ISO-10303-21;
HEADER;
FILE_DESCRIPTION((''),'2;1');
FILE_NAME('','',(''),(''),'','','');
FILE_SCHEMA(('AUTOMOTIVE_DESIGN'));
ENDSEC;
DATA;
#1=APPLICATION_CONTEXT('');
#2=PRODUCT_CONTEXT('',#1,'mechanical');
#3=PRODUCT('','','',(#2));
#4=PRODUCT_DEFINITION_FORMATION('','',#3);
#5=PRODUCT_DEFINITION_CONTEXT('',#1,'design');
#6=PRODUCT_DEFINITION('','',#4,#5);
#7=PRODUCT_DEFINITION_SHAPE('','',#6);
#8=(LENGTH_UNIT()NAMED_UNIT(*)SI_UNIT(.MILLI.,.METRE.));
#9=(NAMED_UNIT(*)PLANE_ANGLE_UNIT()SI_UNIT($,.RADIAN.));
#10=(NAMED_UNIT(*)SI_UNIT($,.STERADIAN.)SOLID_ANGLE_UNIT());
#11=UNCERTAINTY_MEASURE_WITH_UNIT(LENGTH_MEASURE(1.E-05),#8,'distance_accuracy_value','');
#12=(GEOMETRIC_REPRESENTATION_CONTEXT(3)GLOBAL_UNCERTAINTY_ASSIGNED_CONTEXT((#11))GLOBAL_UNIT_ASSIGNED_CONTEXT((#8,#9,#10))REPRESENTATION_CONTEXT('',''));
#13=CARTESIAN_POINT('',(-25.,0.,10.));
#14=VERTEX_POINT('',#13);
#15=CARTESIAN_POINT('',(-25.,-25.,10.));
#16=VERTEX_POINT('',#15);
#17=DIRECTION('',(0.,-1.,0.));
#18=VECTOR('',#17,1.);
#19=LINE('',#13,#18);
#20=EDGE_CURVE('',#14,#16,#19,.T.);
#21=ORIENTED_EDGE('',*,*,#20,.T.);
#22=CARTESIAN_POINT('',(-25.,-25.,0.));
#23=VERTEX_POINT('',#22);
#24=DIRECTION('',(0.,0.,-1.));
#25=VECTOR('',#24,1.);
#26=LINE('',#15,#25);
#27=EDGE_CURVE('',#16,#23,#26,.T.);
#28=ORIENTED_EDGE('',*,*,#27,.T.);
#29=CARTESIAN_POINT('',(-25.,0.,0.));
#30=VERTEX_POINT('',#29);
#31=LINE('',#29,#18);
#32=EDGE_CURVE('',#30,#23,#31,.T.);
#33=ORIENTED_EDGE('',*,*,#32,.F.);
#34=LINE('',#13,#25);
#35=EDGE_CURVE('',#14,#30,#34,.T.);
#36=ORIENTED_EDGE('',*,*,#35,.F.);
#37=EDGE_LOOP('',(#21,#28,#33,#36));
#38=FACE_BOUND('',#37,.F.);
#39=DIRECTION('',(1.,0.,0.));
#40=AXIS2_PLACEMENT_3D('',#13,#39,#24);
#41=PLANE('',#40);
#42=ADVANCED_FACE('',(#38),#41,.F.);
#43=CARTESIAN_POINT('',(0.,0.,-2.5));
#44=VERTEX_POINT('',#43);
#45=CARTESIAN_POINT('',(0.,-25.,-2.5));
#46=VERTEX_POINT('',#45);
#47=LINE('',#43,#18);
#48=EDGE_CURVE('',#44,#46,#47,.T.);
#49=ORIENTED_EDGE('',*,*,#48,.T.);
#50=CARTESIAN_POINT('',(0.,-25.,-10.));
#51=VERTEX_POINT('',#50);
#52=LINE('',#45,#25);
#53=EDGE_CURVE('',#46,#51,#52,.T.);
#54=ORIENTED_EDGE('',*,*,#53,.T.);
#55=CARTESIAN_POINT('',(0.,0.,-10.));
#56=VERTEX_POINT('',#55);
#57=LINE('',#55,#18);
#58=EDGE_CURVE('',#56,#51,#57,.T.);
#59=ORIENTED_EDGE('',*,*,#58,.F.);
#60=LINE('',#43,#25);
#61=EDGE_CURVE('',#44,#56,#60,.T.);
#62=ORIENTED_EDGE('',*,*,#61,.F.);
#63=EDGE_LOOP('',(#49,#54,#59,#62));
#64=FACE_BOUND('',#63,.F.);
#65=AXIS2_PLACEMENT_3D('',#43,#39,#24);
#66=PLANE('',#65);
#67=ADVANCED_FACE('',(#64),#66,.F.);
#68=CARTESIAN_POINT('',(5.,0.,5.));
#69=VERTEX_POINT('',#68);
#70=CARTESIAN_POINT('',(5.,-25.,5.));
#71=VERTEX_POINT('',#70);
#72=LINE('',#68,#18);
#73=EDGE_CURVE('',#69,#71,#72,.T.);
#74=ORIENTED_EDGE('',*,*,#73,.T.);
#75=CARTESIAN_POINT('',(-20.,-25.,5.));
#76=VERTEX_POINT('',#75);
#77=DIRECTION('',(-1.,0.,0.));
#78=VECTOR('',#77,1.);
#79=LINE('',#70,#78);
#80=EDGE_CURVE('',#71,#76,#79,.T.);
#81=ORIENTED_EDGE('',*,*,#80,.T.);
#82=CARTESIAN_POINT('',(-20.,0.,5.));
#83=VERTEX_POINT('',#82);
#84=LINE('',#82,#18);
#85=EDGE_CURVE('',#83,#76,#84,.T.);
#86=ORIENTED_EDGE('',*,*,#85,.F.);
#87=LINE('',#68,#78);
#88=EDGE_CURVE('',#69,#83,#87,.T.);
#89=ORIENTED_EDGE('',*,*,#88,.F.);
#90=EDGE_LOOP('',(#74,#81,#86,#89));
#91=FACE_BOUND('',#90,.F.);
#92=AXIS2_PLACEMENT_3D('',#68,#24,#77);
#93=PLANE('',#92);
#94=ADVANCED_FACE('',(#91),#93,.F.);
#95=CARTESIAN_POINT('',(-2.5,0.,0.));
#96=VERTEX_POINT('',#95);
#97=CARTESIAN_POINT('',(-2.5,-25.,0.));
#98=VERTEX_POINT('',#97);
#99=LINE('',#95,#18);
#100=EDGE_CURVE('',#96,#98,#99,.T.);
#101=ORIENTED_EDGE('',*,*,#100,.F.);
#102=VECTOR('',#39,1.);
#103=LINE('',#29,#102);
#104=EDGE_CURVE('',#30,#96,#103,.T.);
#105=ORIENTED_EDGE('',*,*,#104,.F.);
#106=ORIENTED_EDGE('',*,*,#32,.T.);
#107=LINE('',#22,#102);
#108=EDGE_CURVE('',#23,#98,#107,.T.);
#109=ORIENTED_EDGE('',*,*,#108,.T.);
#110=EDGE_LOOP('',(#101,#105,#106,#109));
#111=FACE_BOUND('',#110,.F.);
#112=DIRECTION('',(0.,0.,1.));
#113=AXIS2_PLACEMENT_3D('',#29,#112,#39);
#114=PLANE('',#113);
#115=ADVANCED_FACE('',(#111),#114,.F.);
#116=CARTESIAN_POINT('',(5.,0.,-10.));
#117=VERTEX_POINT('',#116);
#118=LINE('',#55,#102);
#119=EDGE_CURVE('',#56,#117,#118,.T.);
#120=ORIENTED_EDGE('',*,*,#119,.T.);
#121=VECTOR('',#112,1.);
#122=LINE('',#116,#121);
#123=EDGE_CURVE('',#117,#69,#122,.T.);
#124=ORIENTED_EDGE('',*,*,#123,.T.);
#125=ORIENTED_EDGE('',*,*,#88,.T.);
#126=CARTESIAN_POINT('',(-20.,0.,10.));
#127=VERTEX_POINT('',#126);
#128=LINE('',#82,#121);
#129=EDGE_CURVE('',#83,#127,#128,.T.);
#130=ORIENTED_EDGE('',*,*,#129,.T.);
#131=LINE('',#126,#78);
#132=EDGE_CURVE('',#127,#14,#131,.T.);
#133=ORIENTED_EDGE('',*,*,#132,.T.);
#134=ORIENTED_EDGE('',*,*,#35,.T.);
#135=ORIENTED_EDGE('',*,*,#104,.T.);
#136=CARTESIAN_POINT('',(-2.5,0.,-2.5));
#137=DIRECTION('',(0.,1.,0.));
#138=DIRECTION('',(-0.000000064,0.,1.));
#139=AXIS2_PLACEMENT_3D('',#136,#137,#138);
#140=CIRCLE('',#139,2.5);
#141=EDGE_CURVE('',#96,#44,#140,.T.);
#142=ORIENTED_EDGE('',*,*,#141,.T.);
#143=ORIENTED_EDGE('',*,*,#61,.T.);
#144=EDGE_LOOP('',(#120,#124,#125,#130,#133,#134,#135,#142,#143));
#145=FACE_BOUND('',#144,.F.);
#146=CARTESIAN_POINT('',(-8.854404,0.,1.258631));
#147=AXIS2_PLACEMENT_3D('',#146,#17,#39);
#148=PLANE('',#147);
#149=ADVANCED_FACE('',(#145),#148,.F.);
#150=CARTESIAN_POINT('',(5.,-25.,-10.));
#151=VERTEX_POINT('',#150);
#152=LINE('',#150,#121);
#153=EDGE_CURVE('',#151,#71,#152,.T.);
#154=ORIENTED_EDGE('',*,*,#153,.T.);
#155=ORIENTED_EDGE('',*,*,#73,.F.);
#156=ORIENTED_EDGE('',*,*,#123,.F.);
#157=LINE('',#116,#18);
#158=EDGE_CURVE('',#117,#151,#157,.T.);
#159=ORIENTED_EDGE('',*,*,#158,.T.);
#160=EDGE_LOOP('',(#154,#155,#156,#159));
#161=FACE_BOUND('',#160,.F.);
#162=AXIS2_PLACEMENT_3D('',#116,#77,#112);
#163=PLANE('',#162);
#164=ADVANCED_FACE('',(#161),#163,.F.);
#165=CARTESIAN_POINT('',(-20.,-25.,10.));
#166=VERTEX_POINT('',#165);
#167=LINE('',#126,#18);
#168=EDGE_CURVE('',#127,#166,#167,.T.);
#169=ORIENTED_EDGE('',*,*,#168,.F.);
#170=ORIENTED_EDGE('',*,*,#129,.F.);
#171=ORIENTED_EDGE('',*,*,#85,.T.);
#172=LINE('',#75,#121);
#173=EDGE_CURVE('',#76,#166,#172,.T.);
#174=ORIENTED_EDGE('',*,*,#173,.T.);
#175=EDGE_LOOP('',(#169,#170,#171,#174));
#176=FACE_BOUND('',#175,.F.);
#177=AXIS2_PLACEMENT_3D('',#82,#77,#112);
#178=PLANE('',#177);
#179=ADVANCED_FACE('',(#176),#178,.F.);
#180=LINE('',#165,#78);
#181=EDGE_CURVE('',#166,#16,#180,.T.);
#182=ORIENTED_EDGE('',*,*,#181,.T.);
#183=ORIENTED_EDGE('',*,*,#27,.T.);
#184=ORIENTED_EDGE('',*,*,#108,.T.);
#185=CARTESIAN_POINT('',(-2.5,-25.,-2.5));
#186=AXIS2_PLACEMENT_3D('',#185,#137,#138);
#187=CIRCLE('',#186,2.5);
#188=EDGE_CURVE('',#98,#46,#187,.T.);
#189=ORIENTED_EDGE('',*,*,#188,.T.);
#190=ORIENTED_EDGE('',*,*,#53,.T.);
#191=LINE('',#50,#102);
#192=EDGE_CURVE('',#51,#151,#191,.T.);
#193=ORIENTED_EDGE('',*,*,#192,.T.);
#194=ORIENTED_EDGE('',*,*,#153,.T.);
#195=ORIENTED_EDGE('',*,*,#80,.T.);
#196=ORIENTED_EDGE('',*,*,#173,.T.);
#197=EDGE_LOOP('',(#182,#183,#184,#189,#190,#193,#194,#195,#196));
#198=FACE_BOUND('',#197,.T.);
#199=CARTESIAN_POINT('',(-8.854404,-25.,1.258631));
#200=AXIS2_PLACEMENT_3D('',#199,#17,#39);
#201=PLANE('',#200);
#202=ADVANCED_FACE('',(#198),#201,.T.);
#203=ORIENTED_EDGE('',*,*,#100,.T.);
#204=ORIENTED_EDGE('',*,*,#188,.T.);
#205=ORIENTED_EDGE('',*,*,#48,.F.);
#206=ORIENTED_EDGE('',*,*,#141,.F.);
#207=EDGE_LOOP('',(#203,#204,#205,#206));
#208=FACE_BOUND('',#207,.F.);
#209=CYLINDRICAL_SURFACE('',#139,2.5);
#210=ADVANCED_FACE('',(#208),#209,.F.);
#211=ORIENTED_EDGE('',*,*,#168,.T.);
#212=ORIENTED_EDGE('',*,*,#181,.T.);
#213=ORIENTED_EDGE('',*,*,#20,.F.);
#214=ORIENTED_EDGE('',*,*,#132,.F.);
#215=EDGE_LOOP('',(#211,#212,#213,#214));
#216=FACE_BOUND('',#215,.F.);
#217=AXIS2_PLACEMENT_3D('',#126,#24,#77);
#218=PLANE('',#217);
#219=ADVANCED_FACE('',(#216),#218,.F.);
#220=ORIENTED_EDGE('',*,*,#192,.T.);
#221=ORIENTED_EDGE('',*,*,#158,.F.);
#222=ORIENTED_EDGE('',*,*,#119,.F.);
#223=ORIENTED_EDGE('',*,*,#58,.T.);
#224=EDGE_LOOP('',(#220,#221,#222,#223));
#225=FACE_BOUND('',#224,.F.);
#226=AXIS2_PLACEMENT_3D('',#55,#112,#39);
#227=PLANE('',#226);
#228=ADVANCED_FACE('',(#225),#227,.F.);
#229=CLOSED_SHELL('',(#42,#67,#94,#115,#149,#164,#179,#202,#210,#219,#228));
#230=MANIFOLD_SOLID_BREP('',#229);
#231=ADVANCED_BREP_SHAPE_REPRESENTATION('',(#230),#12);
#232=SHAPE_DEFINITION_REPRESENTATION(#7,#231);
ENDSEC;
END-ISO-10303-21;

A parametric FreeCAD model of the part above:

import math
import FreeCAD as App
import Part
import Sketcher
from FreeCAD import Vector

doc = App.newDocument("Part")
body = doc.addObject("PartDesign::Body", "Body")

# Sketch on XZ plane
sketch1 = body.newObject("Sketcher::SketchObject", "Sketch")
sketch1.AttachmentSupport = (doc.getObject("XZ_Plane"), [""])
sketch1.MapMode = "FlatFace"
sketch1.addGeometry([
    Part.ArcOfCircle(Part.Circle(Vector(-2.5, -2.5, 0), Vector(0, 0, 1), 2.5), math.radians(0), math.radians(90)),  # 0
    Part.LineSegment(Vector(0, -2.5, 0), Vector(0, -10, 0)),  # 1
    Part.LineSegment(Vector(0, -10, 0), Vector(5, -10, 0)),  # 2
    Part.LineSegment(Vector(5, -10, 0), Vector(5, 5, 0)),  # 3
    Part.LineSegment(Vector(5, 5, 0), Vector(-20, 5, 0)),  # 4
    Part.LineSegment(Vector(-20, 5, 0), Vector(-20, 10, 0)),  # 5
    Part.LineSegment(Vector(-20, 10, 0), Vector(-25, 10, 0)),  # 6
    Part.LineSegment(Vector(-25, 10, 0), Vector(-25, 0, 0)),  # 7
    Part.LineSegment(Vector(-25, 0, 0), Vector(-2.5, 0, 0)),  # 8
], False)
sketch1.addConstraint([
    Sketcher.Constraint("Tangent", 0, 1, 1, 1),
    Sketcher.Constraint("Coincident", 1, 2, 2, 1),
    Sketcher.Constraint("Coincident", 2, 2, 3, 1),
    Sketcher.Constraint("Coincident", 3, 2, 4, 1),
    Sketcher.Constraint("Coincident", 4, 2, 5, 1),
    Sketcher.Constraint("Coincident", 5, 2, 6, 1),
    Sketcher.Constraint("Coincident", 6, 2, 7, 1),
    Sketcher.Constraint("Coincident", 7, 2, 8, 1),
    Sketcher.Constraint("Tangent", 8, 2, 0, 2),
    Sketcher.Constraint("Vertical", 1),
    Sketcher.Constraint("Horizontal", 2),
    Sketcher.Constraint("Vertical", 3),
    Sketcher.Constraint("Horizontal", 4),
    Sketcher.Constraint("Vertical", 5),
    Sketcher.Constraint("Horizontal", 6),
    Sketcher.Constraint("Vertical", 7),
    Sketcher.Constraint("Horizontal", 8),
    Sketcher.Constraint("PointOnObject", 0, 1, -2),
    Sketcher.Constraint("PointOnObject", 7, 2, -1),
    Sketcher.Constraint("Equal", 2, 6),
    Sketcher.Constraint("Equal", 6, 5),
    Sketcher.Constraint("Radius", 0, 2.5),
    Sketcher.Constraint("DistanceX", 2, 1, 2, 2, 5.0),
    Sketcher.Constraint("DistanceX", 4, 2, 4, 1, 25.0),
    Sketcher.Constraint("DistanceY", 3, 1, 3, 2, 15.0),
    Sketcher.Constraint("DistanceY", 7, 2, 7, 1, 10.0),
])
pad1 = body.newObject("PartDesign::Pad", "Pad")
pad1.Profile = sketch1
pad1.Length = 25

doc.recompute()
